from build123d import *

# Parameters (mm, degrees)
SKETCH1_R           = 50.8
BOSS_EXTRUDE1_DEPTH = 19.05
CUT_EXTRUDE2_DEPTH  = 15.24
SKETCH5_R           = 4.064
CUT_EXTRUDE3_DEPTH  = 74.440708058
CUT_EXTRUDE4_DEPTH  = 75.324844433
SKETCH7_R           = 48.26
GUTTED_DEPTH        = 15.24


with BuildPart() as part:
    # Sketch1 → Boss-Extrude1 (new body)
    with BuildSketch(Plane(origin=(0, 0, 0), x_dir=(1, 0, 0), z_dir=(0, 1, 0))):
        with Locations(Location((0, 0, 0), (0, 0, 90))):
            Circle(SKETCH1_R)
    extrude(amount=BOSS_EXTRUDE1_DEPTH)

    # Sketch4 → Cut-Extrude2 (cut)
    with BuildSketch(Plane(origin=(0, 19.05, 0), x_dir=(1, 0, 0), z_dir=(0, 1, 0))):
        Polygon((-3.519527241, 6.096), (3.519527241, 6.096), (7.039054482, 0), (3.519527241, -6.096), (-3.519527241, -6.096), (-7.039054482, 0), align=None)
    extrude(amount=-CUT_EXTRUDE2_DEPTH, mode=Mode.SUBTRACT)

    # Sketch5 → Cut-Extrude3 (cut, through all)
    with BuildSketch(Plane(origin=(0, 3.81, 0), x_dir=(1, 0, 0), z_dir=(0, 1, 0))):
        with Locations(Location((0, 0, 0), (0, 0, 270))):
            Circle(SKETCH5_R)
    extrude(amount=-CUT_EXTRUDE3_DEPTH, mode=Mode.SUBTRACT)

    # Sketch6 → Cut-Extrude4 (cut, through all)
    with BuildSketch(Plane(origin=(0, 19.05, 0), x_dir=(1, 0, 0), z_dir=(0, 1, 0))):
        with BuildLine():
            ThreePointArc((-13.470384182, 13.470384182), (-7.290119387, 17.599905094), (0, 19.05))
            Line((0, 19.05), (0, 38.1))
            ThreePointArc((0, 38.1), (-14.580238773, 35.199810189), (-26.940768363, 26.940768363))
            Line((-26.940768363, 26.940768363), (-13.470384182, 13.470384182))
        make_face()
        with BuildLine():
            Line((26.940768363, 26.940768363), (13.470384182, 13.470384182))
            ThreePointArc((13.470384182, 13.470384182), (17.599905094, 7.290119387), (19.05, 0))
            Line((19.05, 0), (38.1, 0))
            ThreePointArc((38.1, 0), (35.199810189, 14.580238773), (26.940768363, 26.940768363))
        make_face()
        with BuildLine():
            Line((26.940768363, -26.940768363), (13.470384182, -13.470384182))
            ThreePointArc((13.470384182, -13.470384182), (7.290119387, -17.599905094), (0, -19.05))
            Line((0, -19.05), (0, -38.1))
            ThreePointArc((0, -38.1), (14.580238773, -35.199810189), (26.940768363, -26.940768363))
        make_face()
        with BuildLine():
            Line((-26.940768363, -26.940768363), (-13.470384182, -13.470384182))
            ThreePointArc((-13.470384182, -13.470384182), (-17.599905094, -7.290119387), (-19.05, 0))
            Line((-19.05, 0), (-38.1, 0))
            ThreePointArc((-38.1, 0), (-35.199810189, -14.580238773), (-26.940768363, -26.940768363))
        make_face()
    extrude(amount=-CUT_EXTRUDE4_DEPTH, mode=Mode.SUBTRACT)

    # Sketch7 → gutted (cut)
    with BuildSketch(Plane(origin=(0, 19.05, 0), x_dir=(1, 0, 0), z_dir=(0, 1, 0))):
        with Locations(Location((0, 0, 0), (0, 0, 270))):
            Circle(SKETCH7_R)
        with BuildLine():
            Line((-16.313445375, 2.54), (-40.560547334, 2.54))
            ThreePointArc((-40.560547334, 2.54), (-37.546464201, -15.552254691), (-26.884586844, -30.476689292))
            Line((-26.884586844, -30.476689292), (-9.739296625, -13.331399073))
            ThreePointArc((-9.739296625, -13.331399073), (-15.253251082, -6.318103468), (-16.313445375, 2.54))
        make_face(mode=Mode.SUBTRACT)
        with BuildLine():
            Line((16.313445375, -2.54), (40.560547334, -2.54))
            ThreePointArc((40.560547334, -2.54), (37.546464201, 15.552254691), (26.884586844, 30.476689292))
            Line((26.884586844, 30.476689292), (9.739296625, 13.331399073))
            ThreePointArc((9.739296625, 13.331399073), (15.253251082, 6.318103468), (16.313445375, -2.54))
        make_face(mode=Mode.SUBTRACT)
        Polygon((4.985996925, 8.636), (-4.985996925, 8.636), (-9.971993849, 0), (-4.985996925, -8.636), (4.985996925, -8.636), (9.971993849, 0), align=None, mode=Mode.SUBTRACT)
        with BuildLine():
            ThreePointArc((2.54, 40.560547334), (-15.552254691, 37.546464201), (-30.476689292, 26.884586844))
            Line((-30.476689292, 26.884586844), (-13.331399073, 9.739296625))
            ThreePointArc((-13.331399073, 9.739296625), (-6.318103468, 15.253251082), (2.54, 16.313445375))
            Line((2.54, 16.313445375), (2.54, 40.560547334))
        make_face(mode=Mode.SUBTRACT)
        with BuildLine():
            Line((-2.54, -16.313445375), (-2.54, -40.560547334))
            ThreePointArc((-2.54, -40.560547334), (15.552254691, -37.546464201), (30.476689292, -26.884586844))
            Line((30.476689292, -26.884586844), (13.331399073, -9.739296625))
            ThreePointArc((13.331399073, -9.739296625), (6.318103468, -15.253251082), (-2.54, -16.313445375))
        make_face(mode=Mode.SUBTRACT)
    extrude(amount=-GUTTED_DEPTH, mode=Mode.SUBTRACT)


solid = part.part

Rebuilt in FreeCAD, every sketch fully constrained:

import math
import FreeCAD as App
import Part
import Sketcher
from FreeCAD import Vector
Q = App.Units.Quantity


def add_polygon(sketch, points):
    """Adds a closed chain of lines whose ends are joined by coincident constraints."""
    first, n = sketch.GeometryCount, len(points)
    for a, b in zip(points, points[1:] + points[:1]):
        sketch.addGeometry(Part.LineSegment(App.Vector(*a, 0), App.Vector(*b, 0)), False)
    for i in range(n):
        sketch.addConstraint(Sketcher.Constraint("Coincident", first + i, 2, first + (i + 1) % n, 1))

doc = App.newDocument("Part")
body = doc.addObject("PartDesign::Body", "Body")

sketch1 = doc.addObject("Sketcher::SketchObject", "Sketch")
body.addObject(sketch1)
sketch1.AttachmentSupport = (doc.XZ_Plane, [""])
sketch1.MapMode = "FlatFace"
sketch1.addGeometry(Part.Circle(Vector(0, 0, 0), Vector(0, 0, 1), 50.8), False)
sketch1.addConstraint(Sketcher.Constraint("Coincident", 0, 3, -1, 1))
sketch1.addConstraint(Sketcher.Constraint("Diameter", 0, Q("4 in")))
pad1 = doc.addObject("PartDesign::Pad", "Pad")
body.addObject(pad1)
pad1.Profile = sketch1
pad1.Length = Q("0.75 in")
pad1.Reversed = True

sketch2 = doc.addObject("Sketcher::SketchObject", "Sketch001")
body.addObject(sketch2)
sketch2.AttachmentSupport = (doc.XZ_Plane, [""])
sketch2.MapMode = "FlatFace"
sketch2.AttachmentOffset = App.Placement(Vector(0, 0, -0.75 * 25.4), App.Rotation())
add_polygon(sketch2, [(3.519527, -6.096), (-3.519527, -6.096), (-7.039054, 0), (-3.519527, 6.096), (3.519527, 6.096), (7.039054, 0)])
sketch2.addConstraint(Sketcher.Constraint("Horizontal", 0))
sketch2.addConstraint(Sketcher.Constraint("Horizontal", 3))
sketch2.addConstraint(Sketcher.Constraint("Symmetric", 0, 2, 3, 2, -1, 1))
sketch2.addConstraint(Sketcher.Constraint("Symmetric", 1, 2, 4, 2, -1, 1))
sketch2.addConstraint(Sketcher.Constraint("PointOnObject", 1, 2, -1))
sketch2.addConstraint(Sketcher.Constraint("Parallel", 2, 5))
sketch2.addConstraint(Sketcher.Constraint("Vertical", 0, 2, 2, 2))
sketch2.addConstraint(Sketcher.Constraint("Angle", 1, Q("120 deg")))
sketch2.addConstraint(Sketcher.Constraint("DistanceY", 0, 2, -1, 1, Q("0.24 in")))
sketch2.addConstraint(Sketcher.Constraint("DistanceX", 0, 2, 0, 1, Q("7.039054 mm")))
pocket1 = doc.addObject("PartDesign::Pocket", "Pocket")
body.addObject(pocket1)
pocket1.Profile = sketch2
pocket1.Length = Q("0.6 in")
pocket1.Reversed = True

sketch3 = doc.addObject("Sketcher::SketchObject", "Sketch002")
body.addObject(sketch3)
sketch3.AttachmentSupport = (doc.XZ_Plane, [""])
sketch3.MapMode = "FlatFace"
sketch3.AttachmentOffset = App.Placement(Vector(0, 0, -0.15 * 25.4), App.Rotation())
sketch3.addGeometry(Part.Circle(Vector(0, 0, 0), Vector(0, 0, 1), 4.064), False)
sketch3.addConstraint(Sketcher.Constraint("Coincident", 0, 3, -1, 1))
sketch3.addConstraint(Sketcher.Constraint("Diameter", 0, Q("0.32 in")))
pocket2 = doc.addObject("PartDesign::Pocket", "Pocket001")
body.addObject(pocket2)
pocket2.Profile = sketch3
pocket2.Type = "ThroughAll"
pocket2.Reversed = True

sketch4 = doc.addObject("Sketcher::SketchObject", "Sketch003")
body.addObject(sketch4)
sketch4.AttachmentSupport = (doc.XZ_Plane, [""])
sketch4.MapMode = "FlatFace"
sketch4.AttachmentOffset = App.Placement(Vector(0, 0, -0.75 * 25.4), App.Rotation())
sketch4.addGeometry(Part.ArcOfCircle(Part.Circle(Vector(0, 0, 0), Vector(0, 0, 1), 19.05), math.radians(-135), math.radians(-90)), False)
sketch4.addGeometry(Part.LineSegment(Vector(0, -19.05, 0), Vector(0, -38.1, 0)), False)
sketch4.addGeometry(Part.ArcOfCircle(Part.Circle(Vector(0, 0, 0), Vector(0, 0, 1), 38.1), math.radians(-135), math.radians(-90)), False)
sketch4.addGeometry(Part.LineSegment(Vector(-26.940768, -26.940768, 0), Vector(-13.470384, -13.470384, 0)), False)
sketch4.addGeometry(Part.LineSegment(Vector(26.940768, -26.940768, 0), Vector(13.470384, -13.470384, 0)), False)
sketch4.addGeometry(Part.ArcOfCircle(Part.Circle(Vector(0, 0, 0), Vector(0, 0, 1), 19.05), math.radians(-45), math.radians(0)), False)
sketch4.addGeometry(Part.LineSegment(Vector(19.05, 0, 0), Vector(38.1, 0, 0)), False)
sketch4.addGeometry(Part.ArcOfCircle(Part.Circle(Vector(0, 0, 0), Vector(0, 0, 1), 38.1), math.radians(-45), math.radians(0)), False)
sketch4.addGeometry(Part.LineSegment(Vector(26.940768, 26.940768, 0), Vector(13.470384, 13.470384, 0)), False)
sketch4.addGeometry(Part.ArcOfCircle(Part.Circle(Vector(0, 0, 0), Vector(0, 0, 1), 19.05), math.radians(45), math.radians(90)), False)
sketch4.addGeometry(Part.LineSegment(Vector(0, 19.05, 0), Vector(0, 38.1, 0)), False)
sketch4.addGeometry(Part.ArcOfCircle(Part.Circle(Vector(0, 0, 0), Vector(0, 0, 1), 38.1), math.radians(45), math.radians(90)), False)
sketch4.addGeometry(Part.LineSegment(Vector(-26.940768, 26.940768, 0), Vector(-13.470384, 13.470384, 0)), False)
sketch4.addGeometry(Part.ArcOfCircle(Part.Circle(Vector(0, 0, 0), Vector(0, 0, 1), 19.05), math.radians(135), math.radians(180)), False)
sketch4.addGeometry(Part.LineSegment(Vector(-19.05, 0, 0), Vector(-38.1, 0, 0)), False)
sketch4.addGeometry(Part.ArcOfCircle(Part.Circle(Vector(0, 0, 0), Vector(0, 0, 1), 38.1), math.radians(135), math.radians(180)), False)
sketch4.addConstraint(Sketcher.Constraint("Coincident", 0, 2, 1, 1))
sketch4.addConstraint(Sketcher.Constraint("Coincident", 1, 2, 2, 2))
sketch4.addConstraint(Sketcher.Constraint("Coincident", 2, 1, 3, 1))
sketch4.addConstraint(Sketcher.Constraint("Coincident", 3, 2, 0, 1))
sketch4.addConstraint(Sketcher.Constraint("Coincident", 4, 2, 5, 1))
sketch4.addConstraint(Sketcher.Constraint("Coincident", 5, 2, 6, 1))
sketch4.addConstraint(Sketcher.Constraint("Coincident", 6, 2, 7, 2))
sketch4.addConstraint(Sketcher.Constraint("Coincident", 7, 1, 4, 1))
sketch4.addConstraint(Sketcher.Constraint("Coincident", 8, 2, 9, 1))
sketch4.addConstraint(Sketcher.Constraint("Coincident", 9, 2, 10, 1))
sketch4.addConstraint(Sketcher.Constraint("Coincident", 10, 2, 11, 2))
sketch4.addConstraint(Sketcher.Constraint("Coincident", 11, 1, 8, 1))
sketch4.addConstraint(Sketcher.Constraint("Coincident", 12, 2, 13, 1))
sketch4.addConstraint(Sketcher.Constraint("Coincident", 13, 2, 14, 1))
sketch4.addConstraint(Sketcher.Constraint("Coincident", 14, 2, 15, 2))
sketch4.addConstraint(Sketcher.Constraint("Coincident", 15, 1, 12, 1))
sketch4.addConstraint(Sketcher.Constraint("Vertical", 1))
sketch4.addConstraint(Sketcher.Constraint("Horizontal", 6))
sketch4.addConstraint(Sketcher.Constraint("Vertical", 10))
sketch4.addConstraint(Sketcher.Constraint("Horizontal", 14))
sketch4.addConstraint(Sketcher.Constraint("Coincident", 0, 3, -1, 1))
sketch4.addConstraint(Sketcher.Constraint("Coincident", 2, 3, -1, 1))
sketch4.addConstraint(Sketcher.Constraint("Coincident", 5, 3, -1, 1))
sketch4.addConstraint(Sketcher.Constraint("Coincident", 7, 3, -1, 1))
sketch4.addConstraint(Sketcher.Constraint("Coincident", 9, 3, -1, 1))
sketch4.addConstraint(Sketcher.Constraint("Coincident", 11, 3, -1, 1))
sketch4.addConstraint(Sketcher.Constraint("Coincident", 13, 3, -1, 1))
sketch4.addConstraint(Sketcher.Constraint("Coincident", 15, 3, -1, 1))
sketch4.addConstraint(Sketcher.Constraint("Equal", 0, 5))
sketch4.addConstraint(Sketcher.Constraint("Equal", 2, 7))
sketch4.addConstraint(Sketcher.Constraint("Equal", 5, 9))
sketch4.addConstraint(Sketcher.Constraint("Equal", 7, 11))
sketch4.addConstraint(Sketcher.Constraint("Equal", 9, 13))
sketch4.addConstraint(Sketcher.Constraint("Equal", 11, 15))
sketch4.addConstraint(Sketcher.Constraint("PointOnObject", 0, 2, -2))
sketch4.addConstraint(Sketcher.Constraint("PointOnObject", 5, 2, -1))
sketch4.addConstraint(Sketcher.Constraint("PointOnObject", 9, 2, -2))
sketch4.addConstraint(Sketcher.Constraint("PointOnObject", 13, 2, -1))
sketch4.addConstraint(Sketcher.Constraint("Perpendicular", 3, 4))
sketch4.addConstraint(Sketcher.Constraint("Perpendicular", 4, 8))
sketch4.addConstraint(Sketcher.Constraint("Perpendicular", 8, 12))
sketch4.addConstraint(Sketcher.Constraint("Horizontal", 3, 2, 4, 2))
sketch4.addConstraint(Sketcher.Constraint("Horizontal", 2, 1, 7, 1))
sketch4.addConstraint(Sketcher.Constraint("Horizontal", 8, 2, 12, 2))
sketch4.addConstraint(Sketcher.Constraint("Vertical", 4, 2, 8, 2))
sketch4.addConstraint(Sketcher.Constraint("Radius", 2, Q("1.5 in")))
sketch4.addConstraint(Sketcher.Constraint("Radius", 0, Q("0.75 in")))
sketch4.addConstraint(Sketcher.Constraint("DistanceX", 2, 1, -1, 1, Q("26.940768 mm")))
pocket3 = doc.addObject("PartDesign::Pocket", "Pocket002")
body.addObject(pocket3)
pocket3.Profile = sketch4
pocket3.Type = "ThroughAll"
pocket3.Reversed = True

sketch5 = doc.addObject("Sketcher::SketchObject", "Sketch004")
body.addObject(sketch5)
sketch5.AttachmentSupport = (doc.XZ_Plane, [""])
sketch5.MapMode = "FlatFace"
sketch5.AttachmentOffset = App.Placement(Vector(0, 0, -0.75 * 25.4), App.Rotation())
sketch5.addGeometry(Part.Circle(Vector(0, 0, 0), Vector(0, 0, 1), 48.26), False)
sketch5.addGeometry(Part.ArcOfCircle(Part.Circle(Vector(0, 0, 0), Vector(0, 0, 1), 40.64), math.radians(-138.583322), math.radians(-86.416678)), False)
sketch5.addGeometry(Part.LineSegment(Vector(2.54, -40.560547, 0), Vector(2.54, -16.313445, 0)), False)
sketch5.addGeometry(Part.ArcOfCircle(Part.Circle(Vector(0, 0, 0), Vector(0, 0, 1), 16.51), math.radians(-143.849883), math.radians(-81.150117)), False)
sketch5.addGeometry(Part.LineSegment(Vector(-13.331399, -9.739297, 0), Vector(-30.476689, -26.884587, 0)), False)
sketch5.addGeometry(Part.LineSegment(Vector(-40.560547, -2.54, 0), Vector(-16.313445, -2.54, 0)), False)
sketch5.addGeometry(Part.ArcOfCircle(Part.Circle(Vector(0, 0, 0), Vector(0, 0, 1), 16.51), math.radians(126.150117), math.radians(188.849883)), False)
sketch5.addGeometry(Part.LineSegment(Vector(-9.739297, 13.331399, 0), Vector(-26.884587, 30.476689, 0)), False)
sketch5.addGeometry(Part.ArcOfCircle(Part.Circle(Vector(0, 0, 0), Vector(0, 0, 1), 40.64), math.radians(131.416678), math.radians(183.583322)), False)
sketch5.addGeometry(Part.LineSegment(Vector(40.560547, 2.54, 0), Vector(16.313445, 2.54, 0)), False)
sketch5.addGeometry(Part.ArcOfCircle(Part.Circle(Vector(0, 0, 0), Vector(0, 0, 1), 16.51), math.radians(-53.849883), math.radians(8.849883)), False)
sketch5.addGeometry(Part.LineSegment(Vector(9.739297, -13.331399, 0), Vector(26.884587, -30.476689, 0)), False)
sketch5.addGeometry(Part.ArcOfCircle(Part.Circle(Vector(0, 0, 0), Vector(0, 0, 1), 40.64), math.radians(-48.583322), math.radians(3.583322)), False)
add_polygon(sketch5, [(-4.985997, -8.636), (4.985997, -8.636), (9.971994, 0), (4.985997, 8.636), (-4.985997, 8.636), (-9.971994, 0)])
sketch5.addGeometry(Part.LineSegment(Vector(-2.54, 40.560547, 0), Vector(-2.54, 16.313445, 0)), False)
sketch5.addGeometry(Part.ArcOfCircle(Part.Circle(Vector(0, 0, 0), Vector(0, 0, 1), 16.51), math.radians(36.150117), math.radians(98.849883)), False)
sketch5.addGeometry(Part.LineSegment(Vector(13.331399, 9.739297, 0), Vector(30.476689, 26.884587, 0)), False)
sketch5.addGeometry(Part.ArcOfCircle(Part.Circle(Vector(0, 0, 0), Vector(0, 0, 1), 40.64), math.radians(41.416678), math.radians(93.583322)), False)
sketch5.addConstraint(Sketcher.Constraint("Coincident", 1, 2, 2, 1))
sketch5.addConstraint(Sketcher.Constraint("Coincident", 2, 2, 3, 2))
sketch5.addConstraint(Sketcher.Constraint("Coincident", 3, 1, 4, 1))
sketch5.addConstraint(Sketcher.Constraint("Coincident", 4, 2, 1, 1))
sketch5.addConstraint(Sketcher.Constraint("Coincident", 5, 2, 6, 2))
sketch5.addConstraint(Sketcher.Constraint("Coincident", 6, 1, 7, 1))
sketch5.addConstraint(Sketcher.Constraint("Coincident", 7, 2, 8, 1))
sketch5.addConstraint(Sketcher.Constraint("Coincident", 8, 2, 5, 1))
sketch5.addConstraint(Sketcher.Constraint("Coincident", 9, 2, 10, 2))
sketch5.addConstraint(Sketcher.Constraint("Coincident", 10, 1, 11, 1))
sketch5.addConstraint(Sketcher.Constraint("Coincident", 11, 2, 12, 1))
sketch5.addConstraint(Sketcher.Constraint("Coincident", 12, 2, 9, 1))
sketch5.addConstraint(Sketcher.Constraint("Coincident", 19, 2, 20, 2))
sketch5.addConstraint(Sketcher.Constraint("Coincident", 20, 1, 21, 1))
sketch5.addConstraint(Sketcher.Constraint("Coincident", 21, 2, 22, 1))
sketch5.addConstraint(Sketcher.Constraint("Coincident", 22, 2, 19, 1))
sketch5.addConstraint(Sketcher.Constraint("Vertical", 2))
sketch5.addConstraint(Sketcher.Constraint("Horizontal", 5))
sketch5.addConstraint(Sketcher.Constraint("Horizontal", 9))
sketch5.addConstraint(Sketcher.Constraint("Horizontal", 13))
sketch5.addConstraint(Sketcher.Constraint("Horizontal", 16))
sketch5.addConstraint(Sketcher.Constraint("Vertical", 19))
sketch5.addConstraint(Sketcher.Constraint("Coincident", 0, 3, -1, 1))
sketch5.addConstraint(Sketcher.Constraint("Coincident", 1, 3, -1, 1))
sketch5.addConstraint(Sketcher.Constraint("Coincident", 3, 3, -1, 1))
sketch5.addConstraint(Sketcher.Constraint("Coincident", 6, 3, -1, 1))
sketch5.addConstraint(Sketcher.Constraint("Coincident", 8, 3, -1, 1))
sketch5.addConstraint(Sketcher.Constraint("Coincident", 10, 3, -1, 1))
sketch5.addConstraint(Sketcher.Constraint("Coincident", 12, 3, -1, 1))
sketch5.addConstraint(Sketcher.Constraint("Coincident", 20, 3, -1, 1))
sketch5.addConstraint(Sketcher.Constraint("Coincident", 22, 3, -1, 1))
sketch5.addConstraint(Sketcher.Constraint("Equal", 3, 6))
sketch5.addConstraint(Sketcher.Constraint("Equal", 1, 8))
sketch5.addConstraint(Sketcher.Constraint("Equal", 6, 10))
sketch5.addConstraint(Sketcher.Constraint("Equal", 8, 12))
sketch5.addConstraint(Sketcher.Constraint("Equal", 10, 20))
sketch5.addConstraint(Sketcher.Constraint("Equal", 12, 22))
sketch5.addConstraint(Sketcher.Constraint("Symmetric", 13, 2, 16, 2, -1, 1))
sketch5.addConstraint(Sketcher.Constraint("Symmetric", 14, 2, 17, 2, -1, 1))
sketch5.addConstraint(Sketcher.Constraint("PointOnObject", 14, 2, -1))
sketch5.addConstraint(Sketcher.Constraint("Perpendicular", 4, 7))
sketch5.addConstraint(Sketcher.Constraint("Parallel", 7, 11))
sketch5.addConstraint(Sketcher.Constraint("Parallel", 15, 18))
sketch5.addConstraint(Sketcher.Constraint("Perpendicular", 11, 21))
sketch5.addConstraint(Sketcher.Constraint("Vertical", 13, 2, 15, 2))
sketch5.addConstraint(Sketcher.Constraint("Equal", 5, 9))
sketch5.addConstraint(Sketcher.Constraint("Equal", 9, 2))
sketch5.addConstraint(Sketcher.Constraint("Equal", 2, 19))
sketch5.addConstraint(Sketcher.Constraint("Equal", 4, 7))
sketch5.addConstraint(Sketcher.Constraint("Equal", 7, 11))
sketch5.addConstraint(Sketcher.Constraint("Equal", 11, 21))
sketch5.addConstraint(Sketcher.Constraint("Diameter", 0, Q("3.8 in")))
sketch5.addConstraint(Sketcher.Constraint("Radius", 1, Q("1.6 in")))
sketch5.addConstraint(Sketcher.Constraint("Radius", 3, Q("0.65 in")))
sketch5.addConstraint(Sketcher.Constraint("Angle", 4, Q("-135 deg")))
sketch5.addConstraint(Sketcher.Constraint("Angle", 14, Q("60 deg")))
sketch5.addConstraint(Sketcher.Constraint("DistanceX", -1, 1, 1, 2, Q("0.1 in")))
sketch5.addConstraint(Sketcher.Constraint("DistanceY", 13, 2, -1, 1, Q("0.34 in")))
sketch5.addConstraint(Sketcher.Constraint("Distance", 4, Q("24.247102 mm")))
sketch5.addConstraint(Sketcher.Constraint("DistanceX", 13, 2, 10, 1, Q("4.7533 mm")))
pocket4 = doc.addObject("PartDesign::Pocket", "Pocket003")
body.addObject(pocket4)
pocket4.Profile = sketch5
pocket4.Length = Q("0.6 in")
pocket4.Reversed = True

doc.recompute()
